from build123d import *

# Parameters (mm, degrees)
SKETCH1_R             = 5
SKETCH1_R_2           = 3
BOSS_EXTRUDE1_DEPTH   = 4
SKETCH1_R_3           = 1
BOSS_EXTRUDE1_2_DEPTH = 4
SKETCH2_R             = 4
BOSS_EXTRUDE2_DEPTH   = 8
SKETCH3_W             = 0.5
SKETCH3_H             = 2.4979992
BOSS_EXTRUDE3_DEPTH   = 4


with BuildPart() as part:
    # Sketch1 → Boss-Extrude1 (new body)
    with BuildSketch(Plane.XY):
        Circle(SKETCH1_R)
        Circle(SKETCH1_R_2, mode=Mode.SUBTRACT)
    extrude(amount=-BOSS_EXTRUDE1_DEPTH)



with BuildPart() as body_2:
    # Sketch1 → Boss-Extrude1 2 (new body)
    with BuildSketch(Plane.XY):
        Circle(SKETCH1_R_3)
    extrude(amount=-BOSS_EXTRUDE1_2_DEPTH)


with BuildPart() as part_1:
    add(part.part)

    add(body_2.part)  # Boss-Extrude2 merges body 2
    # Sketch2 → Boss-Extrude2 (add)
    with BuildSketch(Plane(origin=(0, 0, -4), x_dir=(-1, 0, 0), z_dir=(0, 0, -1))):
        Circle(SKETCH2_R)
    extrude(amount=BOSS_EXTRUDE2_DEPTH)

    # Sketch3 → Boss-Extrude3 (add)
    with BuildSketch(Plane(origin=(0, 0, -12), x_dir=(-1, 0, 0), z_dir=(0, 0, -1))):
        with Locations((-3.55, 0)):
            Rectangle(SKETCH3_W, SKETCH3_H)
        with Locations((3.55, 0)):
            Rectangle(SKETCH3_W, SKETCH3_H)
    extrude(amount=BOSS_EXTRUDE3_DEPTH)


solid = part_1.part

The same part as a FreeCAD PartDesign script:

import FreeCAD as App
import Part
import Sketcher

V = App.Vector


def add_polygon(sketch, points):
    """Adds a closed chain of lines whose ends are joined by coincident constraints."""
    first, n = sketch.GeometryCount, len(points)
    for a, b in zip(points, points[1:] + points[:1]):
        sketch.addGeometry(Part.LineSegment(App.Vector(*a, 0), App.Vector(*b, 0)), False)
    for i in range(n):
        sketch.addConstraint(Sketcher.Constraint("Coincident", first + i, 2, first + (i + 1) % n, 1))

doc = App.newDocument("Part")
params = doc.addObject("Spreadsheet::Sheet", "Params")
for row, (alias, value) in enumerate([
    ("sketch1_diameter", "10 mm"),
    ("sketch1_diameter2", "6 mm"),
    ("pad1_length", "4 mm"),
    ("sketch2_diameter", "2 mm"),
    ("pad2_length", "4 mm"),
    ("sketch3_diameter", "8 mm"),
    ("pad3_length", "8 mm"),
    ("sketch4_width", "0.5 mm"),
    ("pad4_length", "4 mm"),
], start=1):
    params.set(f"A{row}", alias)
    params.set(f"B{row}", "=" + value)
    params.setAlias(f"B{row}", alias)

body = doc.addObject("PartDesign::Body", "Body")

# Sketch on XY plane
sketch1 = body.newObject("Sketcher::SketchObject", "Sketch")
sketch1.AttachmentSupport = (doc.getObject("XY_Plane"), [""])
sketch1.MapMode = "FlatFace"
sketch1.addGeometry([
    Part.Circle(V(0, 0, 0), V(0, 0, 1), 5),
    Part.Circle(V(0, 0, 0), V(0, 0, 1), 3),
], False)
sketch1.addConstraint([
    Sketcher.Constraint("Coincident", 0, 3, -1, 1),
    Sketcher.Constraint("Coincident", 1, 3, -1, 1),
    Sketcher.Constraint("Diameter", 0, 10.0),
    Sketcher.Constraint("Diameter", 1, 6.0),
])
sketch1.setExpression("Constraints[2]", "Params.sketch1_diameter")
sketch1.setExpression("Constraints[3]", "Params.sketch1_diameter2")
pad1 = body.newObject("PartDesign::Pad", "Pad")
pad1.Profile = sketch1
pad1.setExpression("Length", "Params.pad1_length")
pad1.Reversed = True
body2 = doc.addObject("PartDesign::Body", "Body001")

# Sketch on XY plane
sketch2 = body2.newObject("Sketcher::SketchObject", "Sketch001")
sketch2.AttachmentSupport = (doc.getObject("XY_Plane001"), [""])
sketch2.MapMode = "FlatFace"
sketch2.addGeometry(Part.Circle(V(0, 0, 0), V(0, 0, 1), 1), False)
sketch2.addConstraint([
    Sketcher.Constraint("Coincident", 0, 3, -1, 1),
    Sketcher.Constraint("Diameter", 0, 2.0),
])
sketch2.setExpression("Constraints[1]", "Params.sketch2_diameter")
pad2 = body2.newObject("PartDesign::Pad", "Pad001")
pad2.Profile = sketch2
pad2.setExpression("Length", "Params.pad2_length")
pad2.Reversed = True
body.AllowCompound = True
doc.recompute()

boolean = body.newObject("PartDesign::Boolean", "Boolean")
boolean.Type = "Fuse"
boolean.addObjects([body2])

# Sketch on XY plane
sketch3 = body.newObject("Sketcher::SketchObject", "Sketch002")
sketch3.AttachmentSupport = (doc.getObject("XY_Plane"), [""])
sketch3.MapMode = "FlatFace"
sketch3.AttachmentOffset = App.Placement(V(0, 0, -4), App.Rotation())
sketch3.addGeometry(Part.Circle(V(0, 0, 0), V(0, 0, 1), 4), False)
sketch3.addConstraint([
    Sketcher.Constraint("Coincident", 0, 3, -1, 1),
    Sketcher.Constraint("Diameter", 0, 8.0),
])
sketch3.setExpression("Constraints[1]", "Params.sketch3_diameter")
pad3 = body.newObject("PartDesign::Pad", "Pad002")
pad3.Profile = sketch3
pad3.setExpression("Length", "Params.pad3_length")
pad3.Reversed = True

# Sketch on XY plane
sketch4 = body.newObject("Sketcher::SketchObject", "Sketch003")
sketch4.AttachmentSupport = (doc.getObject("XY_Plane"), [""])
sketch4.MapMode = "FlatFace"
sketch4.AttachmentOffset = App.Placement(V(0, 0, -12), App.Rotation())
add_polygon(sketch4, [(3.8, 1.249), (3.8, -1.249), (3.3, -1.249), (3.3, 1.249)])  # lines 0-3
add_polygon(sketch4, [(-3.3, 1.249), (-3.3, -1.249), (-3.8, -1.249), (-3.8, 1.249)])  # lines 4-7
sketch4.addConstraint([
    Sketcher.Constraint("Vertical", 0),
    Sketcher.Constraint("Horizontal", 1),
    Sketcher.Constraint("Vertical", 2),
    Sketcher.Constraint("Horizontal", 3),
    Sketcher.Constraint("Vertical", 4),
    Sketcher.Constraint("Horizontal", 5),
    Sketcher.Constraint("Vertical", 6),
    Sketcher.Constraint("Horizontal", 7),
    Sketcher.Constraint("Symmetric", 2, 2, 4, 2, -1, 1),
    Sketcher.Constraint("Symmetric", 0, 2, 6, 2, -1, 1),
    Sketcher.Constraint("Horizontal", 1, 2, 4, 2),
    Sketcher.Constraint("DistanceX", 1, 2, 1, 1, 0.5),
    Sketcher.Constraint("DistanceX", -1, 1, 0, 2, 3.8),
    Sketcher.Constraint("DistanceY", 0, 2, 0, 1, 2.497999),
])
sketch4.setExpression("Constraints[19]", "Params.sketch4_width")
pad4 = body.newObject("PartDesign::Pad", "Pad003")
pad4.Profile = sketch4
pad4.setExpression("Length", "Params.pad4_length")
pad4.Reversed = True

doc.recompute()
